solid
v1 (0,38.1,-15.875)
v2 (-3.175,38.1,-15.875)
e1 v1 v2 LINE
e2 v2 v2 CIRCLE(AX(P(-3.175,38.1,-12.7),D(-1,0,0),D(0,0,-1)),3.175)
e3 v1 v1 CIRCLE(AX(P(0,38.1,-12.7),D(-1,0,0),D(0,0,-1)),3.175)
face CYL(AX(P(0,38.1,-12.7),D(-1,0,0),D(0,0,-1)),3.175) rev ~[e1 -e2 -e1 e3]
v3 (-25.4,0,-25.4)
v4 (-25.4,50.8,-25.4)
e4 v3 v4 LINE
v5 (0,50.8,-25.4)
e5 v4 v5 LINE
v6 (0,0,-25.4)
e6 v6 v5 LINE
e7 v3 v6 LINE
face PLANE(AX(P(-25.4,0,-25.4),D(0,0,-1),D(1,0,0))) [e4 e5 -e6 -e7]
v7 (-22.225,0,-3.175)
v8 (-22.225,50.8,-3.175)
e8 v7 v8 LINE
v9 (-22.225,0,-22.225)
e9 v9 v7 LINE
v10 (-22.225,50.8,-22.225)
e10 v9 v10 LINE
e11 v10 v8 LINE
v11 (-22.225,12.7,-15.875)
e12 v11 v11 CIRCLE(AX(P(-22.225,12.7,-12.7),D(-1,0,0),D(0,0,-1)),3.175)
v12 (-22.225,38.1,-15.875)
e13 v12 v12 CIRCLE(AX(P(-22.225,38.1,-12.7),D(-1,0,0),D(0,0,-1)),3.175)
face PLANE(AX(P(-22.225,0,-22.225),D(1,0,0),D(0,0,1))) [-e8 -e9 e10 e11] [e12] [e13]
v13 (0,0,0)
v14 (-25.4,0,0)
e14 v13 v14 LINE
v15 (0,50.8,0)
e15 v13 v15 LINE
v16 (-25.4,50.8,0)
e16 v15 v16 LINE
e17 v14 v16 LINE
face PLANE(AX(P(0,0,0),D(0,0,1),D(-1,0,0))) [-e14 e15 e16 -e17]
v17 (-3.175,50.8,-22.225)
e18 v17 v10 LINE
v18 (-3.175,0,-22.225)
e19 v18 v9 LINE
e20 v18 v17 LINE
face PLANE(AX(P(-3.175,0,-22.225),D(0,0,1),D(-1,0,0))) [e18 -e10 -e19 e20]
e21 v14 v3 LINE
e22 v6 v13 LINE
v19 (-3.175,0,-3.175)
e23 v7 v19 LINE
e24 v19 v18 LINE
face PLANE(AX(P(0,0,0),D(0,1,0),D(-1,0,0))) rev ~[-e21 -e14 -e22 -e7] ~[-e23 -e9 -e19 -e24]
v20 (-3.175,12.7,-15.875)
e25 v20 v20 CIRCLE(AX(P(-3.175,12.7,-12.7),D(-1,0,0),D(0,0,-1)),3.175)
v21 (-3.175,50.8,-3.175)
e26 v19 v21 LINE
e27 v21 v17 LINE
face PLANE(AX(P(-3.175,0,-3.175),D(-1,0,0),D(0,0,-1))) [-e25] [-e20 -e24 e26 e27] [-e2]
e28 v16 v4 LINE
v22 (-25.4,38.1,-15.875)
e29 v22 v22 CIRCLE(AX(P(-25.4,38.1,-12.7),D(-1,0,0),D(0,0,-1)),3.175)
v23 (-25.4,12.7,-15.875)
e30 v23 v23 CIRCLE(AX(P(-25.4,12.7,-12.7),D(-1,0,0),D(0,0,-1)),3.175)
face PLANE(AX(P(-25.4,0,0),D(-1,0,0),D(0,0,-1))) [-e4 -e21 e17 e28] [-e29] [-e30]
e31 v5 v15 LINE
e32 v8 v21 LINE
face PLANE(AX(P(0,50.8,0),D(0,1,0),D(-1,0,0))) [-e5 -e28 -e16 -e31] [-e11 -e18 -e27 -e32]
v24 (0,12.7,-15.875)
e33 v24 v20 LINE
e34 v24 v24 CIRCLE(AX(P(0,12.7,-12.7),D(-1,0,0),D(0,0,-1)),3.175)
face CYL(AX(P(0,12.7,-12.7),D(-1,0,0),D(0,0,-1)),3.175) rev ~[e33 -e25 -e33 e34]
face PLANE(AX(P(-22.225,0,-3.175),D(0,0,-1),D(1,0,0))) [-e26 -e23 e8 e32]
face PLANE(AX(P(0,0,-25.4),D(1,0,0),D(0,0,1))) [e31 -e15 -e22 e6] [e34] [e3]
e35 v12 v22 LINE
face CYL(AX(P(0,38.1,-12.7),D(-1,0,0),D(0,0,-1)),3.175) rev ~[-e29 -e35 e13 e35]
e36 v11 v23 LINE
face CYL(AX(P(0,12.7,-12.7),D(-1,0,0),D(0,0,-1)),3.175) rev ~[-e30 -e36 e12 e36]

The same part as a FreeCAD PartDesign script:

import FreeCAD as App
import Part
import Sketcher
from FreeCAD import Vector
Q = App.Units.Quantity

doc = App.newDocument("Part")
body = doc.addObject("PartDesign::Body", "Body")

# Sketch on XZ plane
sketch1 = body.newObject("Sketcher::SketchObject", "Sketch")
sketch1.AttachmentSupport = (doc.getObject("XZ_Plane"), [""])
sketch1.MapMode = "FlatFace"
sketch1.addGeometry(Part.LineSegment(Vector(-25, 0, 0), Vector(0, 0, 0)), False)
sketch1.addGeometry(Part.LineSegment(Vector(0, 0, 0), Vector(0, -25, 0)), False)
sketch1.addGeometry(Part.LineSegment(Vector(0, -25, 0), Vector(-25, -25, 0)), False)
sketch1.addGeometry(Part.LineSegment(Vector(-25, -25, 0), Vector(-25, 0, 0)), False)
sketch1.addGeometry(Part.LineSegment(Vector(-22, -3, 0), Vector(-22, -22, 0)), False)
sketch1.addGeometry(Part.LineSegment(Vector(-22, -22, 0), Vector(-3, -22, 0)), False)
sketch1.addGeometry(Part.LineSegment(Vector(-3, -22, 0), Vector(-3, -3, 0)), False)
sketch1.addGeometry(Part.LineSegment(Vector(-3, -3, 0), Vector(-22, -3, 0)), False)
sketch1.addConstraint(Sketcher.Constraint("Coincident", 0, 2, 1, 1))
sketch1.addConstraint(Sketcher.Constraint("Coincident", 1, 2, 2, 1))
sketch1.addConstraint(Sketcher.Constraint("Coincident", 2, 2, 3, 1))
sketch1.addConstraint(Sketcher.Constraint("Coincident", 3, 2, 0, 1))
sketch1.addConstraint(Sketcher.Constraint("Coincident", 4, 2, 5, 1))
sketch1.addConstraint(Sketcher.Constraint("Coincident", 5, 2, 6, 1))
sketch1.addConstraint(Sketcher.Constraint("Coincident", 6, 2, 7, 1))
sketch1.addConstraint(Sketcher.Constraint("Coincident", 7, 2, 4, 1))
sketch1.addConstraint(Sketcher.Constraint("Horizontal", 0))
sketch1.addConstraint(Sketcher.Constraint("Vertical", 1))
sketch1.addConstraint(Sketcher.Constraint("Horizontal", 2))
sketch1.addConstraint(Sketcher.Constraint("Vertical", 3))
sketch1.addConstraint(Sketcher.Constraint("Vertical", 4))
sketch1.addConstraint(Sketcher.Constraint("Horizontal", 5))
sketch1.addConstraint(Sketcher.Constraint("Vertical", 6))
sketch1.addConstraint(Sketcher.Constraint("Horizontal", 7))
sketch1.addConstraint(Sketcher.Constraint("Coincident", 0, 2, -1, 1))
sketch1.addConstraint(Sketcher.Constraint("Equal", 2, 1))
sketch1.addConstraint(Sketcher.Constraint("Equal", 7, 4))
sketch1.addConstraint(Sketcher.Constraint("DistanceX", 0, 1, 0, 2, Q("1 in")))
sketch1.addConstraint(Sketcher.Constraint("DistanceX", 5, 2, -1, 1, Q("0.125 in")))
sketch1.addConstraint(Sketcher.Constraint("DistanceY", 6, 2, -1, 1, Q("0.125 in")))
sketch1.addConstraint(Sketcher.Constraint("DistanceX", 2, 2, 4, 2, Q("0.125 in")))
pad1 = body.newObject("PartDesign::Pad", "Pad")
pad1.Profile = sketch1
pad1.Length = Q("2 in")
pad1.Reversed = True

# Sketch on YZ plane
sketch2 = body.newObject("Sketcher::SketchObject", "Sketch001")
sketch2.AttachmentSupport = (doc.getObject("YZ_Plane"), [""])
sketch2.MapMode = "FlatFace"
sketch2.addGeometry(Part.Circle(Vector(38.1, -12.7, 0), Vector(0, 0, 1), 3.2), False)
sketch2.addGeometry(Part.Circle(Vector(12.7, -12.7, 0), Vector(0, 0, 1), 3.2), False)
sketch2.addConstraint(Sketcher.Constraint("Equal", 0, 1))
sketch2.addConstraint(Sketcher.Constraint("Horizontal", 0, 3, 1, 3))
sketch2.addConstraint(Sketcher.Constraint("Diameter", 0, Q("0.25 in")))
sketch2.addConstraint(Sketcher.Constraint("DistanceX", 1, 3, 0, 3, Q("1 in")))
sketch2.addConstraint(Sketcher.Constraint("DistanceX", -1, 1, 0, 3, Q("1.5 in")))
sketch2.addConstraint(Sketcher.Constraint("DistanceY", 0, 3, -1, 1, Q("0.5 in")))
doc.recompute()
hole = body.newObject("PartDesign::Hole", "Hole")
hole.Profile = sketch2
hole.ThreadType = "None"
hole.Diameter = Q("0.25 in")
hole.DepthType = "ThroughAll"

doc.recompute()
